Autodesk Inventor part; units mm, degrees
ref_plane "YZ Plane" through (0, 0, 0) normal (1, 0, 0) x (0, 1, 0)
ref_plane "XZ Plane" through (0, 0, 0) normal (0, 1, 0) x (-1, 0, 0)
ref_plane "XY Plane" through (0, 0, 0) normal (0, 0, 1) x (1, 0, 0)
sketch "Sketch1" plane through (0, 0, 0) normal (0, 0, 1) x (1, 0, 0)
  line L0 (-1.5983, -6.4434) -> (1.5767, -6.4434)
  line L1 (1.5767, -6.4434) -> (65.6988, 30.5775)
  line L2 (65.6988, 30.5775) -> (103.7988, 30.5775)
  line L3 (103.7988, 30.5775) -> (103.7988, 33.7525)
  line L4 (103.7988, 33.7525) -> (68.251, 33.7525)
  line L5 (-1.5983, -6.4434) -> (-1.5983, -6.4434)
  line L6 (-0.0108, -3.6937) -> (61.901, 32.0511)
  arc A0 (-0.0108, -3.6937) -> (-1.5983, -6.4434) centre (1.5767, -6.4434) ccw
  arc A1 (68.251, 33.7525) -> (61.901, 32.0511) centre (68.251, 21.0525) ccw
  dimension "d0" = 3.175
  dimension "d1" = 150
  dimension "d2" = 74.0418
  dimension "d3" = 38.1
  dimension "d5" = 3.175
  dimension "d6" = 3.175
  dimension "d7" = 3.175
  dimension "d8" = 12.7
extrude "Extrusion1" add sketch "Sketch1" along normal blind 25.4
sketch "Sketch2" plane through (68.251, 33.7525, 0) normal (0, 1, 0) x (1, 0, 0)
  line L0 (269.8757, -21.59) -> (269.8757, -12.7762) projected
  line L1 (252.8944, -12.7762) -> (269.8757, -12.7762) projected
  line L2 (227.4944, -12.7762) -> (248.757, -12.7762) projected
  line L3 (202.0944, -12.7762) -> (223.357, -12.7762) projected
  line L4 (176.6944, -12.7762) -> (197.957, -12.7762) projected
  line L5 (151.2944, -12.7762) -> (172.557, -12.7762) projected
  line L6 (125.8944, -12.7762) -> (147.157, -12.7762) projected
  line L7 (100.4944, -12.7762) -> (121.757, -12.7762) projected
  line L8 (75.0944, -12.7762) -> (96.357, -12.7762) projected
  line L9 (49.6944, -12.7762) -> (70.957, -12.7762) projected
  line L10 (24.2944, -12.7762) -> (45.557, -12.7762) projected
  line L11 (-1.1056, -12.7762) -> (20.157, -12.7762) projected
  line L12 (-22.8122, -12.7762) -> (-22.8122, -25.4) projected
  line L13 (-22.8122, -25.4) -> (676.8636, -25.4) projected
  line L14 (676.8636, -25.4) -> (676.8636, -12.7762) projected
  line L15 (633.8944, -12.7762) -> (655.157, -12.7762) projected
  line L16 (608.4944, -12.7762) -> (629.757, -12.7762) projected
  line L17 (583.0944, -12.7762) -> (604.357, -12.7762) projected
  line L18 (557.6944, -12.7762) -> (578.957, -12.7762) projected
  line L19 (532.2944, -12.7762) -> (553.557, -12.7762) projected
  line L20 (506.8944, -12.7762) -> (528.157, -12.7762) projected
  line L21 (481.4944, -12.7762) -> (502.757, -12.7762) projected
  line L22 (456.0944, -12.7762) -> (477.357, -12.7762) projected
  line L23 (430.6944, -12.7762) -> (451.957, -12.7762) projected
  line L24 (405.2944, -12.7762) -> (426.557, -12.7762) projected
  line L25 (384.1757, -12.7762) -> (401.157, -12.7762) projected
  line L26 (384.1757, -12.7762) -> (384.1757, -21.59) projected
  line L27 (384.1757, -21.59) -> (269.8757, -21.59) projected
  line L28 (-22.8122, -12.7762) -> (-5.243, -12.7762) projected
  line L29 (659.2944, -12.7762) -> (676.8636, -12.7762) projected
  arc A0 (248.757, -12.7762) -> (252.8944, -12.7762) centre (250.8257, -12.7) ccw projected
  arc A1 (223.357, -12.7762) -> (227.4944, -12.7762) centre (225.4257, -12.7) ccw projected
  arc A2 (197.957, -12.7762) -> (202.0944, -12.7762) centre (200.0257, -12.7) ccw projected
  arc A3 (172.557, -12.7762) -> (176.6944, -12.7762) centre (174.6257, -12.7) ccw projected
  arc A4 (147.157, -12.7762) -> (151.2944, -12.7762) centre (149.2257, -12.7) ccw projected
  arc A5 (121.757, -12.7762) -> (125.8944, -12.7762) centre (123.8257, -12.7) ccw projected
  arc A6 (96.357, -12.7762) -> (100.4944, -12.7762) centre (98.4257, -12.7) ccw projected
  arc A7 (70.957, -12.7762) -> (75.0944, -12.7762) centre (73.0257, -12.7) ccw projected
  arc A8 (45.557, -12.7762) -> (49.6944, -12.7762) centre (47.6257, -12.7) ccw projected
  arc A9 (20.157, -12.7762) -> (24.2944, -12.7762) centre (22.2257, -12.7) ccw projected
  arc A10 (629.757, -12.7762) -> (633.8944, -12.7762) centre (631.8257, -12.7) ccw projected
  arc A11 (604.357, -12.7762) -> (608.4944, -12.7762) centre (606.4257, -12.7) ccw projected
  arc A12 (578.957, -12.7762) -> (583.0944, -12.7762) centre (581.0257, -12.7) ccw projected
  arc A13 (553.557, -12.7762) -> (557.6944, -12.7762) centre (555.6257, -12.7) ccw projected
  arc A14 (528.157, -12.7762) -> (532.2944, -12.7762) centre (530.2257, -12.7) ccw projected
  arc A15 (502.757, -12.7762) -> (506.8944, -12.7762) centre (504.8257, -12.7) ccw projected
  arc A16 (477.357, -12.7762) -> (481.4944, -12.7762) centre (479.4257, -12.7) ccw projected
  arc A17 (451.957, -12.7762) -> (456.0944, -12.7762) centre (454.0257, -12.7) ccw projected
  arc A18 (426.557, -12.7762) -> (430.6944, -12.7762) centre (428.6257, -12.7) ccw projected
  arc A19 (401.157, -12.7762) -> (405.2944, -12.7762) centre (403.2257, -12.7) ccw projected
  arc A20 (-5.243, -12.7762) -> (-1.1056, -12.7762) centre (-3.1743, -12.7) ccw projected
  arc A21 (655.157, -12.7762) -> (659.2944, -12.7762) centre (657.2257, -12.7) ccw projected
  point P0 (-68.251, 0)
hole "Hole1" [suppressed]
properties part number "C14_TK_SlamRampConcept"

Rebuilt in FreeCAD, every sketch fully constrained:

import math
import FreeCAD as App
import Part
import Sketcher

V = App.Vector
Q = App.Units.Quantity

doc = App.newDocument("Part")
body = doc.addObject("PartDesign::Body", "Body")

# Sketch on XY plane
sketch1 = body.newObject("Sketcher::SketchObject", "Sketch")
sketch1.AttachmentSupport = (doc.getObject("XY_Plane"), [""])
sketch1.MapMode = "FlatFace"
sketch1.addGeometry([
    Part.ArcOfCircle(Part.Circle(V(1.6, -6.4, 0), V(0, 0, 1), 3.2), math.radians(120), math.radians(180)),  # 0
    Part.LineSegment(V(-1.6, -6.4, 0), V(1.6, -6.4, 0)),  # 1
    Part.LineSegment(V(1.6, -6.4, 0), V(65.7, 30.6, 0)),  # 2
    Part.LineSegment(V(65.7, 30.6, 0), V(103.8, 30.6, 0)),  # 3
    Part.LineSegment(V(103.8, 30.6, 0), V(103.8, 33.8, 0)),  # 4
    Part.LineSegment(V(103.8, 33.8, 0), V(68.3, 33.8, 0)),  # 5
    Part.ArcOfCircle(Part.Circle(V(68.3, 21.1, 0), V(0, 0, 1), 12.7), math.radians(90), math.radians(120)),  # 6
    Part.LineSegment(V(61.9, 32.1, 0), V(0, -3.7, 0)),  # 7
], False)
sketch1.addConstraint([
    Sketcher.Constraint("Coincident", 0, 2, 1, 1),
    Sketcher.Constraint("Coincident", 1, 2, 2, 1),
    Sketcher.Constraint("Coincident", 2, 2, 3, 1),
    Sketcher.Constraint("Coincident", 3, 2, 4, 1),
    Sketcher.Constraint("Coincident", 4, 2, 5, 1),
    Sketcher.Constraint("Tangent", 5, 2, 6, 1),
    Sketcher.Constraint("Tangent", 6, 2, 7, 1),
    Sketcher.Constraint("Tangent", 7, 2, 0, 1),
    Sketcher.Constraint("Horizontal", 1),
    Sketcher.Constraint("Horizontal", 3),
    Sketcher.Constraint("Vertical", 4),
    Sketcher.Constraint("Horizontal", 5),
    Sketcher.Constraint("Coincident", 1, 2, 0, 3),
    Sketcher.Constraint("Parallel", 2, 7),
    Sketcher.Constraint("Equal", 1, 4),
    Sketcher.Constraint("Radius", 6, Q("0.5 in")),
    Sketcher.Constraint("DistanceX", 3, 1, 3, 2, Q("1.5 in")),
    Sketcher.Constraint("Angle", 7, Q("-150 deg")),
    Sketcher.Constraint("Radius", 0, Q("0.125 in")),
    Sketcher.Constraint("Distance", 2, Q("74.0418 mm")),
    Sketcher.Constraint("DistanceX", -1, 1, 0, 3, Q("1.5767 mm")),
    Sketcher.Constraint("DistanceY", 0, 3, -1, 1, Q("6.4434 mm")),
])
pad1 = body.newObject("PartDesign::Pad", "Pad")
pad1.Profile = sketch1
pad1.Length = Q("1 in")

doc.recompute()
